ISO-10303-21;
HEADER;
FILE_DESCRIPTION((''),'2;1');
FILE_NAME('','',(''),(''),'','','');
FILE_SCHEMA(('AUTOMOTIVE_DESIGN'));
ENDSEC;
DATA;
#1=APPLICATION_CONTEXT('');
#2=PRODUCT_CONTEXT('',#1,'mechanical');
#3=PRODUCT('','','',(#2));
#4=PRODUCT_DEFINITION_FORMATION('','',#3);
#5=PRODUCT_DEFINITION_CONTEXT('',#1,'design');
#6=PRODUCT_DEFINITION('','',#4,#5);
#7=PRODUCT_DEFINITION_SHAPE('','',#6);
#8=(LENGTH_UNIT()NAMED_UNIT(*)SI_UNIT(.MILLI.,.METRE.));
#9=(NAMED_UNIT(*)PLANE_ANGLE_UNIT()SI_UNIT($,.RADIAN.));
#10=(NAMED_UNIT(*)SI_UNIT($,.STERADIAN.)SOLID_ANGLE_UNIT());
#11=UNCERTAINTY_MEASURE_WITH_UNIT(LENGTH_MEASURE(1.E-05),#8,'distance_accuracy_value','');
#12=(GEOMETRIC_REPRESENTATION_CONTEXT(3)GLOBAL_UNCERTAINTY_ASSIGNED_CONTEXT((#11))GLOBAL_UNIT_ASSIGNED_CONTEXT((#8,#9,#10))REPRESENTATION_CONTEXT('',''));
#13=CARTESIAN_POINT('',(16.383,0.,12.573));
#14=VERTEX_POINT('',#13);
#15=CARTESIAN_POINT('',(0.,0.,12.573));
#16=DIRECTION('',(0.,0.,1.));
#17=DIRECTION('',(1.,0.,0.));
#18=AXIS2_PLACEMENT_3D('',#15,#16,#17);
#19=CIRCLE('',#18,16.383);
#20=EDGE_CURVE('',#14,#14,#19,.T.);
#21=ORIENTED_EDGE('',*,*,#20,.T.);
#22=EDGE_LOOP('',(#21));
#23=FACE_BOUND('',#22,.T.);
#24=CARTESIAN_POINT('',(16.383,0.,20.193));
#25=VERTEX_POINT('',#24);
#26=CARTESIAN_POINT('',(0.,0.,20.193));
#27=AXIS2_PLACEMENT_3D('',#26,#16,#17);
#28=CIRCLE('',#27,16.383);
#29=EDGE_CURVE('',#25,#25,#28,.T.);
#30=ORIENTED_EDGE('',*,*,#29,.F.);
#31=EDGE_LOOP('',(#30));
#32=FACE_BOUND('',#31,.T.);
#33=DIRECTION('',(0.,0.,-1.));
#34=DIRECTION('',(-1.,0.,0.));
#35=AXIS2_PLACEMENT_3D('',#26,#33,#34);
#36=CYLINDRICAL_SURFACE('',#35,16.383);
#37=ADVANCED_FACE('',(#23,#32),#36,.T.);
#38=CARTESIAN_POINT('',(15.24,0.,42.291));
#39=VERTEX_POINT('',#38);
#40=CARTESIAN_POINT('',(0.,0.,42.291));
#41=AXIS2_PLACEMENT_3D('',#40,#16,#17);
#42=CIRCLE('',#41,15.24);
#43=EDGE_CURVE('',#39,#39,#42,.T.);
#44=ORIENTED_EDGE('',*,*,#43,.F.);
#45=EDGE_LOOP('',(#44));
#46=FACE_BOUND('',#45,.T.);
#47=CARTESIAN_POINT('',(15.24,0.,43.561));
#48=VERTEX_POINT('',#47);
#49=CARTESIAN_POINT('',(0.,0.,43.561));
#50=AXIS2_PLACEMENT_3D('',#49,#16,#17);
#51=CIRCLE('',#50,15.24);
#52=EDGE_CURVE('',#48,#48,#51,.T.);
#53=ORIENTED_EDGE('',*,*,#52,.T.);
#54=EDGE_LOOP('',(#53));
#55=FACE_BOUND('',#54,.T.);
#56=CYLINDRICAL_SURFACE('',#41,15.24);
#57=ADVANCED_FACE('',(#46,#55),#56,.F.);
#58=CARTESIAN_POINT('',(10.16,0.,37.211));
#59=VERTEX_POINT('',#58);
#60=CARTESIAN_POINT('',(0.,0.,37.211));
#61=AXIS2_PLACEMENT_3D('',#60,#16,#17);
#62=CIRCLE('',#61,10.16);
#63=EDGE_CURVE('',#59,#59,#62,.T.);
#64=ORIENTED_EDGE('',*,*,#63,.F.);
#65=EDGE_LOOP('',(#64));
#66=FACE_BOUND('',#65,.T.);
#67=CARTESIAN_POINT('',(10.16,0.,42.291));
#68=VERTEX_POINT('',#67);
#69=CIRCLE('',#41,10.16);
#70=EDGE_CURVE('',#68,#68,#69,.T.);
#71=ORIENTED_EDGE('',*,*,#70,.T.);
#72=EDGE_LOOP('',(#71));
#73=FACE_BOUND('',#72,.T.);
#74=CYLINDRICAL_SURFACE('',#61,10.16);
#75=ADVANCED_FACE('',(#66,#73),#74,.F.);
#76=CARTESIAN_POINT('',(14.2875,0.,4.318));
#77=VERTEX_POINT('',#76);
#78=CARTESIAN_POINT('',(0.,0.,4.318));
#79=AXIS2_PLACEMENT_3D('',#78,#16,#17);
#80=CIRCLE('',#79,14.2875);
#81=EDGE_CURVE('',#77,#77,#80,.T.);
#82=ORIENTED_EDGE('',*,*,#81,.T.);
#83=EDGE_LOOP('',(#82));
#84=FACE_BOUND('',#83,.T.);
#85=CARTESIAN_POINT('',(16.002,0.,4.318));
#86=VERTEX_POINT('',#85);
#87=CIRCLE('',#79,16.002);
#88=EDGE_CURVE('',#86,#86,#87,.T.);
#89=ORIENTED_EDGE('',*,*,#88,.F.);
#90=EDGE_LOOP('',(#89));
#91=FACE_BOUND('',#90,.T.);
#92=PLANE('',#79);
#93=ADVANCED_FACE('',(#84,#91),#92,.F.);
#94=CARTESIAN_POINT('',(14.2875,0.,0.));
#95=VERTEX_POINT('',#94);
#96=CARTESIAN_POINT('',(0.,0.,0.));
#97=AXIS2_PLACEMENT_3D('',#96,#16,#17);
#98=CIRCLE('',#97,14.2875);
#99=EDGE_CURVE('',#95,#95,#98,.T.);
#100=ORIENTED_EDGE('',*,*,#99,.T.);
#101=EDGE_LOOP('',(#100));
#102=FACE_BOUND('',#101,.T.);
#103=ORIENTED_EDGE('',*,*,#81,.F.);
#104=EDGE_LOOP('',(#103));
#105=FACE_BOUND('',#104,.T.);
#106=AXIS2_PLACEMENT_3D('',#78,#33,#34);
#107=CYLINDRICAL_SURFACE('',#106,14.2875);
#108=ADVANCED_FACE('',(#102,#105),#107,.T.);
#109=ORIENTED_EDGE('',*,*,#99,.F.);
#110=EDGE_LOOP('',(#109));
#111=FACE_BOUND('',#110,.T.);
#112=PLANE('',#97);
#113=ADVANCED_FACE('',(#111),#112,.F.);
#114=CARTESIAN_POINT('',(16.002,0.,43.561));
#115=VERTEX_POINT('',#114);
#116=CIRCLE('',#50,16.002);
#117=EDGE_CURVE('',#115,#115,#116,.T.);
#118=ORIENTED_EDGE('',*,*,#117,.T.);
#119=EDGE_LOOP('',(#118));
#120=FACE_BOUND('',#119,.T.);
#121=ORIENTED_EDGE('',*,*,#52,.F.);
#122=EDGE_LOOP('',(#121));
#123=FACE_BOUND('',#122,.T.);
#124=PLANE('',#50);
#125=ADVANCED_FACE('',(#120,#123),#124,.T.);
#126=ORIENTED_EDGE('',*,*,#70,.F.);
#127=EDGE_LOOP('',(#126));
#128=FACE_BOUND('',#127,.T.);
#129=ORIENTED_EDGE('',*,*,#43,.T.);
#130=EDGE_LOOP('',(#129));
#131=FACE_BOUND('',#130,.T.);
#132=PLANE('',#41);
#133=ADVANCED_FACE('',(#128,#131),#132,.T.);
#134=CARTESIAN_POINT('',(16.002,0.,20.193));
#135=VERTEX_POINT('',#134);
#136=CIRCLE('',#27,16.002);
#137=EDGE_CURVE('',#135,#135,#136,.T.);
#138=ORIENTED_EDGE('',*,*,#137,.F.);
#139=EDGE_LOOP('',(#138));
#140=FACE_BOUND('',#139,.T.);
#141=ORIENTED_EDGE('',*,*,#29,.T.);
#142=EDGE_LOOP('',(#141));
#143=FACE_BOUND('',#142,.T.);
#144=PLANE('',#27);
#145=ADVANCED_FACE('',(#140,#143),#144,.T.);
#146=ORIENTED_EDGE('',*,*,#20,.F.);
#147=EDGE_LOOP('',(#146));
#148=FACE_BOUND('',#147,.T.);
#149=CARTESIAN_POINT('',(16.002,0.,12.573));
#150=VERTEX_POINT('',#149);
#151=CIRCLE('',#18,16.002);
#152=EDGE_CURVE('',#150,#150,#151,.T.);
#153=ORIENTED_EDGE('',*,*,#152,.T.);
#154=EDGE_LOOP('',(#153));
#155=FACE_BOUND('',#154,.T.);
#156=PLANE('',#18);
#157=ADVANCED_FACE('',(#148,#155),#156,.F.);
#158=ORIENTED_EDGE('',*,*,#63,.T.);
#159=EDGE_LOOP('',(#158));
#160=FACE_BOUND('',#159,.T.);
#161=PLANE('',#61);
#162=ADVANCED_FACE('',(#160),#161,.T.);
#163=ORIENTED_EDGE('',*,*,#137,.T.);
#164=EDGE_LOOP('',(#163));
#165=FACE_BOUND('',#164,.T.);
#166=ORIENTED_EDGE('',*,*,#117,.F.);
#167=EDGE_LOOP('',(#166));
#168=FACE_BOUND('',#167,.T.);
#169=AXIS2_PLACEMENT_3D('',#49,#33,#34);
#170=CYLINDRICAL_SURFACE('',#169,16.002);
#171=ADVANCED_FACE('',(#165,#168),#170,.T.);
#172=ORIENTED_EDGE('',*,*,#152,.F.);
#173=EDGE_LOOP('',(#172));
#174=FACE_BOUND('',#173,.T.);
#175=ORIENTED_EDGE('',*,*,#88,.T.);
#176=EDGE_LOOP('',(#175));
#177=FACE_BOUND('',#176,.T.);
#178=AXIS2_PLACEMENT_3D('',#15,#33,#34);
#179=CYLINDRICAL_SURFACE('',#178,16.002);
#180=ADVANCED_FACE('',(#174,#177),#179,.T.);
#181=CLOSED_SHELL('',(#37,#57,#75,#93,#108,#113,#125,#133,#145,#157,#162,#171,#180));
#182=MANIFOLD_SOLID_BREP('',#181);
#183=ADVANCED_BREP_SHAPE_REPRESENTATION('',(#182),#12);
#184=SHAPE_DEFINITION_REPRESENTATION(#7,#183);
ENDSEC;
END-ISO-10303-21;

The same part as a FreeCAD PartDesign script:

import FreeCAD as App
import Part
import Sketcher

V = App.Vector
Q = App.Units.Quantity

doc = App.newDocument("Part")
body = doc.addObject("PartDesign::Body", "Body")

# Sketch on XY plane
sketch1 = body.newObject("Sketcher::SketchObject", "Sketch")
sketch1.AttachmentSupport = (doc.getObject("XY_Plane"), [""])
sketch1.MapMode = "FlatFace"
sketch1.addGeometry(Part.Circle(V(0, 0, 0), V(0, 0, 1), 14), False)
sketch1.addConstraint(Sketcher.Constraint("Coincident", 0, 3, -1, 1))
sketch1.addConstraint(Sketcher.Constraint("Diameter", 0, Q("1.125 in")))
pad1 = body.newObject("PartDesign::Pad", "Pad")
pad1.Profile = sketch1
pad1.Length = Q("0.17 in")

# Sketch on XY plane
sketch2 = body.newObject("Sketcher::SketchObject", "Sketch001")
sketch2.AttachmentSupport = (doc.getObject("XY_Plane"), [""])
sketch2.MapMode = "FlatFace"
sketch2.AttachmentOffset = App.Placement(V(0, 0, 0.17 * 25.4), App.Rotation())
sketch2.addGeometry(Part.Circle(V(0, 0, 0), V(0, 0, 1), 16), False)
sketch2.addConstraint(Sketcher.Constraint("Coincident", 0, 3, -1, 1))
sketch2.addConstraint(Sketcher.Constraint("Diameter", 0, Q("1.26 in")))
pad2 = body.newObject("PartDesign::Pad", "Pad001")
pad2.Profile = sketch2
pad2.Length = Q("0.325 in")

# Sketch on XY plane
sketch3 = body.newObject("Sketcher::SketchObject", "Sketch002")
sketch3.AttachmentSupport = (doc.getObject("XY_Plane"), [""])
sketch3.MapMode = "FlatFace"
sketch3.AttachmentOffset = App.Placement(V(0, 0, 0.495 * 25.4), App.Rotation())
sketch3.addGeometry(Part.Circle(V(0, 0, 0), V(0, 0, 1), 16), False)
sketch3.addConstraint(Sketcher.Constraint("Coincident", 0, 3, -1, 1))
sketch3.addConstraint(Sketcher.Constraint("Diameter", 0, Q("1.29 in")))
pad3 = body.newObject("PartDesign::Pad", "Pad002")
pad3.Profile = sketch3
pad3.Length = Q("0.3 in")

# Sketch on XY plane
sketch4 = body.newObject("Sketcher::SketchObject", "Sketch003")
sketch4.AttachmentSupport = (doc.getObject("XY_Plane"), [""])
sketch4.MapMode = "FlatFace"
sketch4.AttachmentOffset = App.Placement(V(0, 0, 0.795 * 25.4), App.Rotation())
sketch4.addGeometry(Part.Circle(V(0, 0, 0), V(0, 0, 1), 16), False)
sketch4.addConstraint(Sketcher.Constraint("Coincident", 0, 3, -1, 1))
sketch4.addConstraint(Sketcher.Constraint("Diameter", 0, Q("1.26 in")))
pad4 = body.newObject("PartDesign::Pad", "Pad003")
pad4.Profile = sketch4
pad4.Length = Q("0.92 in")

# Sketch on XY plane
sketch5 = body.newObject("Sketcher::SketchObject", "Sketch004")
sketch5.AttachmentSupport = (doc.getObject("XY_Plane"), [""])
sketch5.MapMode = "FlatFace"
sketch5.AttachmentOffset = App.Placement(V(0, 0, 1.715 * 25.4), App.Rotation())
sketch5.addGeometry(Part.Circle(V(0, 0, 0), V(0, 0, 1), 15), False)
sketch5.addConstraint(Sketcher.Constraint("Coincident", 0, 3, -1, 1))
sketch5.addConstraint(Sketcher.Constraint("Diameter", 0, Q("1.2 in")))
pocket1 = body.newObject("PartDesign::Pocket", "Pocket")
pocket1.Profile = sketch5
pocket1.Length = Q("0.05 in")

# Sketch on XY plane
sketch6 = body.newObject("Sketcher::SketchObject", "Sketch005")
sketch6.AttachmentSupport = (doc.getObject("XY_Plane"), [""])
sketch6.MapMode = "FlatFace"
sketch6.AttachmentOffset = App.Placement(V(0, 0, 1.665 * 25.4), App.Rotation())
sketch6.addGeometry(Part.Circle(V(0, 0, 0), V(0, 0, 1), 10), False)
sketch6.addConstraint(Sketcher.Constraint("Coincident", 0, 3, -1, 1))
sketch6.addConstraint(Sketcher.Constraint("Diameter", 0, Q("0.8 in")))
pocket2 = body.newObject("PartDesign::Pocket", "Pocket001")
pocket2.Profile = sketch6
pocket2.Length = Q("0.2 in")

doc.recompute()
